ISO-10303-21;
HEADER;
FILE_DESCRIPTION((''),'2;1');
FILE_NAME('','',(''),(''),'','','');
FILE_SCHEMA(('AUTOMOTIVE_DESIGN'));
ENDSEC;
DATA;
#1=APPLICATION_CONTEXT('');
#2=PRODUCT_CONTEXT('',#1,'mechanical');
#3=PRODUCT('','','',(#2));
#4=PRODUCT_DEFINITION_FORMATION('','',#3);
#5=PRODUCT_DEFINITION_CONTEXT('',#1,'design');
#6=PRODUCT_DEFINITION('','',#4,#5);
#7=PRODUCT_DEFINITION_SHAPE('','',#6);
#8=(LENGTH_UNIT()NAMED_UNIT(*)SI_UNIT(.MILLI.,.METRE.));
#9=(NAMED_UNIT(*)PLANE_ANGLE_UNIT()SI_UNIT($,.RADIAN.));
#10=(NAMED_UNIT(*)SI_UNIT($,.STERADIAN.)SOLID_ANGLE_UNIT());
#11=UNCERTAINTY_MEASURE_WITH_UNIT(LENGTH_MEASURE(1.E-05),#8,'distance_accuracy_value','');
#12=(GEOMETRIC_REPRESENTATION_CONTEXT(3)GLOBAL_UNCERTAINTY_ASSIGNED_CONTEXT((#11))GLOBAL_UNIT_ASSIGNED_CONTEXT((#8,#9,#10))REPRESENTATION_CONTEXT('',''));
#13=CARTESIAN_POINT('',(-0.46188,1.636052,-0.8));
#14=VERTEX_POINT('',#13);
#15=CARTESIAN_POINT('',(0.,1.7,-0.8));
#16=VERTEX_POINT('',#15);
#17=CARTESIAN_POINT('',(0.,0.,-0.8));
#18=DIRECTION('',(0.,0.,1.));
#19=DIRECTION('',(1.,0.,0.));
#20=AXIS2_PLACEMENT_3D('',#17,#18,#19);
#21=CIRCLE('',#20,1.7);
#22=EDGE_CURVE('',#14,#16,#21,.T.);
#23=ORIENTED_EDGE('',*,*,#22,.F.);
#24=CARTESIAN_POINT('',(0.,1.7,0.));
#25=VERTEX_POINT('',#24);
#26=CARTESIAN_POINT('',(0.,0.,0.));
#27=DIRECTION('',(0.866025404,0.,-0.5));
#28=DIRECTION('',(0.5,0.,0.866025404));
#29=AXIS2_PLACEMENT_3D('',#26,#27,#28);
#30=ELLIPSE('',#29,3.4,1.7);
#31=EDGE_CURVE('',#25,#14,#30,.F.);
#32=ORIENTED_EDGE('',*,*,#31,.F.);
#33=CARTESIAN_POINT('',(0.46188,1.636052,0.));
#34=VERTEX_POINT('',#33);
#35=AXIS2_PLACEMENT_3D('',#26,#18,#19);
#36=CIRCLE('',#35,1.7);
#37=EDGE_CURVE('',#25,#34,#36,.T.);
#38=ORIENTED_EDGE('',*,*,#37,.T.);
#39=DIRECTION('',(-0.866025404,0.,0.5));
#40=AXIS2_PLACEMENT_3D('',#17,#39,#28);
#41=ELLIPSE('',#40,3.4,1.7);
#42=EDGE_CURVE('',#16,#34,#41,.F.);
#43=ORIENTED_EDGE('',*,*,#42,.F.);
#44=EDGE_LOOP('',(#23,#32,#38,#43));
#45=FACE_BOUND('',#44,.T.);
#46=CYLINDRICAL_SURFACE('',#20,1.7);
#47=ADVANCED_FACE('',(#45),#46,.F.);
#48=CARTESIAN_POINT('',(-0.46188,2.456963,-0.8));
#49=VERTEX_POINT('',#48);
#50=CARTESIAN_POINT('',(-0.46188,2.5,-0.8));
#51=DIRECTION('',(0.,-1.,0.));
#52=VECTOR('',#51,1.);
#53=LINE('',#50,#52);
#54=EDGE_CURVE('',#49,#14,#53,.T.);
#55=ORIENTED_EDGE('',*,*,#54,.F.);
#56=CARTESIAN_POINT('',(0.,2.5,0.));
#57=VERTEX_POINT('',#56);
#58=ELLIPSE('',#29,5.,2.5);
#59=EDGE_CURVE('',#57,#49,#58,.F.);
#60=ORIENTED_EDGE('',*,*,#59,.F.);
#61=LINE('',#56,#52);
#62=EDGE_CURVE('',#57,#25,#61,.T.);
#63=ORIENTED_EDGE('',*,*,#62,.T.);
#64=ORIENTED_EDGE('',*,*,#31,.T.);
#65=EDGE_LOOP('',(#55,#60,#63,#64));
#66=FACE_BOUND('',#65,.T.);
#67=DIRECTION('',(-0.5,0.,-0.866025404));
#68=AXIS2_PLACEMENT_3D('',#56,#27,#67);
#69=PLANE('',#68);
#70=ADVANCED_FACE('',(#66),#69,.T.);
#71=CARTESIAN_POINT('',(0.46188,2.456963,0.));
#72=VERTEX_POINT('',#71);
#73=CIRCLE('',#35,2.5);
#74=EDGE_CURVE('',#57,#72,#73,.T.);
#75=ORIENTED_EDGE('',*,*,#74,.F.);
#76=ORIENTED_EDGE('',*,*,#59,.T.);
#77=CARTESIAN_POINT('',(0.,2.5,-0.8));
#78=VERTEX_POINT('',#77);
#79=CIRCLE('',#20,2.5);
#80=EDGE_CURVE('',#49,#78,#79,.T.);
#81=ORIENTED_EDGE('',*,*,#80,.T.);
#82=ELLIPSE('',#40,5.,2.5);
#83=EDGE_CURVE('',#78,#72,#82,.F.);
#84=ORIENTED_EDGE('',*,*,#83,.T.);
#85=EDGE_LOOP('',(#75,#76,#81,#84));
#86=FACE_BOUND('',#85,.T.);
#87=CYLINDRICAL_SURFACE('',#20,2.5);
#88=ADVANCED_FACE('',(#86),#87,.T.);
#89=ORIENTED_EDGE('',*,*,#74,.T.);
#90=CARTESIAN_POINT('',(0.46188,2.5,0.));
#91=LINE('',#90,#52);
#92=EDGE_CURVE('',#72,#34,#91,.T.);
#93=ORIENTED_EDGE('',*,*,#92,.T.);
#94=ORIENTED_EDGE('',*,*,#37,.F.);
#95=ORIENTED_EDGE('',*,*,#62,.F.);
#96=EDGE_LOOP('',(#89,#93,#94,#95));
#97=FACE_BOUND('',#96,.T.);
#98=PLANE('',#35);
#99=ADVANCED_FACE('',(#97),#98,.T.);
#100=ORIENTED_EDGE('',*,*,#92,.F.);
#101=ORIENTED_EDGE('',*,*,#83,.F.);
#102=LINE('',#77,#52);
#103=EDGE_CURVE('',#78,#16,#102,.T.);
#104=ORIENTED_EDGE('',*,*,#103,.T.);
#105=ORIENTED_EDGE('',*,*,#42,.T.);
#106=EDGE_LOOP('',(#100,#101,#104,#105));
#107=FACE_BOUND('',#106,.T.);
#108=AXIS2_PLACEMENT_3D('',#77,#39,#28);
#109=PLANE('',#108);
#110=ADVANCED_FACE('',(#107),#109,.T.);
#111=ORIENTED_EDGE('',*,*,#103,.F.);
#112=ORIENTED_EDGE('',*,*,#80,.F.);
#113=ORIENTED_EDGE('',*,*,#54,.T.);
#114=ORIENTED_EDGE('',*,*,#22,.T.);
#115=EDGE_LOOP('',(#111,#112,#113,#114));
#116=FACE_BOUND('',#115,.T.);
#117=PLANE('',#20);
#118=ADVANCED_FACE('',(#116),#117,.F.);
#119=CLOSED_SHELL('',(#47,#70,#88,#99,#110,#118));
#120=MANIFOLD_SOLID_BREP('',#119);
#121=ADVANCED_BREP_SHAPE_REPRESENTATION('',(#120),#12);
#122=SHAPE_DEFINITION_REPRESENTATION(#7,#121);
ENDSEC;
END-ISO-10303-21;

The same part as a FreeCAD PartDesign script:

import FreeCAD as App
import Part
import Sketcher
from FreeCAD import Vector
Q = App.Units.Quantity

doc = App.newDocument("Part")
params = doc.addObject("Spreadsheet::Sheet", "Params")
for row, (alias, value) in enumerate([
    ("sketch1_diameter", "5 mm"),
    ("sketch1_diameter2", "3.4 mm"),
    ("pad1_length", "0.8 mm"),
], start=1):
    params.set(f"A{row}", alias)
    params.set(f"B{row}", "=" + value)
    params.setAlias(f"B{row}", alias)

body = doc.addObject("PartDesign::Body", "Body")

# Sketch on XY plane
sketch1 = body.newObject("Sketcher::SketchObject", "Sketch")
sketch1.AttachmentSupport = (doc.getObject("XY_Plane"), [""])
sketch1.MapMode = "FlatFace"
sketch1.addGeometry([
    Part.Circle(Vector(0, 0, 0), Vector(0, 0, 1), 2.5),
    Part.Circle(Vector(0, 0, 0), Vector(0, 0, 1), 1.7),
], False)
sketch1.addConstraint([
    Sketcher.Constraint("Coincident", 0, 3, -1, 1),
    Sketcher.Constraint("Coincident", 1, 3, -1, 1),
    Sketcher.Constraint("Diameter", 0, Q("5 mm")),
    Sketcher.Constraint("Diameter", 1, Q("3.4 mm")),
])
sketch1.setExpression("Constraints[2]", "Params.sketch1_diameter")
sketch1.setExpression("Constraints[3]", "Params.sketch1_diameter2")
pad1 = body.newObject("PartDesign::Pad", "Pad")
pad1.Profile = sketch1
pad1.setExpression("Length", "Params.pad1_length")
pad1.Reversed = True

# Sketch on XZ plane
sketch2 = body.newObject("Sketcher::SketchObject", "Sketch001")
sketch2.AttachmentSupport = (doc.getObject("XZ_Plane"), [""])
sketch2.MapMode = "FlatFace"
sketch2.addGeometry([
    Part.LineSegment(Vector(0.46188, 0, 0), Vector(0, -0.8, 0)),
    Part.LineSegment(Vector(0, -0.8, 0), Vector(-0.46188, -0.8, 0)),
    Part.LineSegment(Vector(-0.46188, -0.8, 0), Vector(0, 0, 0)),
    Part.LineSegment(Vector(0, 0, 0), Vector(0.46188, 0, 0)),
], False)
sketch2.addConstraint([
    Sketcher.Constraint("Coincident", 0, 2, 1, 1),
    Sketcher.Constraint("Coincident", 1, 2, 2, 1),
    Sketcher.Constraint("Coincident", 2, 2, 3, 1),
    Sketcher.Constraint("Coincident", 3, 2, 0, 1),
    Sketcher.Constraint("Horizontal", 1),
    Sketcher.Constraint("Horizontal", 3),
    Sketcher.Constraint("Coincident", 2, 2, -1, 1),
    Sketcher.Constraint("PointOnObject", 0, 2, -2),
    Sketcher.Constraint("Parallel", 0, 2),
    Sketcher.Constraint("Angle", 0, Q("-120 deg")),
    Sketcher.Constraint("DistanceY", 0, 2, -1, 1, Q("0.8 mm")),
])
pocket1 = body.newObject("PartDesign::Pocket", "Pocket")
pocket1.Profile = sketch2
pocket1.Type = "ThroughAll"

doc.recompute()
